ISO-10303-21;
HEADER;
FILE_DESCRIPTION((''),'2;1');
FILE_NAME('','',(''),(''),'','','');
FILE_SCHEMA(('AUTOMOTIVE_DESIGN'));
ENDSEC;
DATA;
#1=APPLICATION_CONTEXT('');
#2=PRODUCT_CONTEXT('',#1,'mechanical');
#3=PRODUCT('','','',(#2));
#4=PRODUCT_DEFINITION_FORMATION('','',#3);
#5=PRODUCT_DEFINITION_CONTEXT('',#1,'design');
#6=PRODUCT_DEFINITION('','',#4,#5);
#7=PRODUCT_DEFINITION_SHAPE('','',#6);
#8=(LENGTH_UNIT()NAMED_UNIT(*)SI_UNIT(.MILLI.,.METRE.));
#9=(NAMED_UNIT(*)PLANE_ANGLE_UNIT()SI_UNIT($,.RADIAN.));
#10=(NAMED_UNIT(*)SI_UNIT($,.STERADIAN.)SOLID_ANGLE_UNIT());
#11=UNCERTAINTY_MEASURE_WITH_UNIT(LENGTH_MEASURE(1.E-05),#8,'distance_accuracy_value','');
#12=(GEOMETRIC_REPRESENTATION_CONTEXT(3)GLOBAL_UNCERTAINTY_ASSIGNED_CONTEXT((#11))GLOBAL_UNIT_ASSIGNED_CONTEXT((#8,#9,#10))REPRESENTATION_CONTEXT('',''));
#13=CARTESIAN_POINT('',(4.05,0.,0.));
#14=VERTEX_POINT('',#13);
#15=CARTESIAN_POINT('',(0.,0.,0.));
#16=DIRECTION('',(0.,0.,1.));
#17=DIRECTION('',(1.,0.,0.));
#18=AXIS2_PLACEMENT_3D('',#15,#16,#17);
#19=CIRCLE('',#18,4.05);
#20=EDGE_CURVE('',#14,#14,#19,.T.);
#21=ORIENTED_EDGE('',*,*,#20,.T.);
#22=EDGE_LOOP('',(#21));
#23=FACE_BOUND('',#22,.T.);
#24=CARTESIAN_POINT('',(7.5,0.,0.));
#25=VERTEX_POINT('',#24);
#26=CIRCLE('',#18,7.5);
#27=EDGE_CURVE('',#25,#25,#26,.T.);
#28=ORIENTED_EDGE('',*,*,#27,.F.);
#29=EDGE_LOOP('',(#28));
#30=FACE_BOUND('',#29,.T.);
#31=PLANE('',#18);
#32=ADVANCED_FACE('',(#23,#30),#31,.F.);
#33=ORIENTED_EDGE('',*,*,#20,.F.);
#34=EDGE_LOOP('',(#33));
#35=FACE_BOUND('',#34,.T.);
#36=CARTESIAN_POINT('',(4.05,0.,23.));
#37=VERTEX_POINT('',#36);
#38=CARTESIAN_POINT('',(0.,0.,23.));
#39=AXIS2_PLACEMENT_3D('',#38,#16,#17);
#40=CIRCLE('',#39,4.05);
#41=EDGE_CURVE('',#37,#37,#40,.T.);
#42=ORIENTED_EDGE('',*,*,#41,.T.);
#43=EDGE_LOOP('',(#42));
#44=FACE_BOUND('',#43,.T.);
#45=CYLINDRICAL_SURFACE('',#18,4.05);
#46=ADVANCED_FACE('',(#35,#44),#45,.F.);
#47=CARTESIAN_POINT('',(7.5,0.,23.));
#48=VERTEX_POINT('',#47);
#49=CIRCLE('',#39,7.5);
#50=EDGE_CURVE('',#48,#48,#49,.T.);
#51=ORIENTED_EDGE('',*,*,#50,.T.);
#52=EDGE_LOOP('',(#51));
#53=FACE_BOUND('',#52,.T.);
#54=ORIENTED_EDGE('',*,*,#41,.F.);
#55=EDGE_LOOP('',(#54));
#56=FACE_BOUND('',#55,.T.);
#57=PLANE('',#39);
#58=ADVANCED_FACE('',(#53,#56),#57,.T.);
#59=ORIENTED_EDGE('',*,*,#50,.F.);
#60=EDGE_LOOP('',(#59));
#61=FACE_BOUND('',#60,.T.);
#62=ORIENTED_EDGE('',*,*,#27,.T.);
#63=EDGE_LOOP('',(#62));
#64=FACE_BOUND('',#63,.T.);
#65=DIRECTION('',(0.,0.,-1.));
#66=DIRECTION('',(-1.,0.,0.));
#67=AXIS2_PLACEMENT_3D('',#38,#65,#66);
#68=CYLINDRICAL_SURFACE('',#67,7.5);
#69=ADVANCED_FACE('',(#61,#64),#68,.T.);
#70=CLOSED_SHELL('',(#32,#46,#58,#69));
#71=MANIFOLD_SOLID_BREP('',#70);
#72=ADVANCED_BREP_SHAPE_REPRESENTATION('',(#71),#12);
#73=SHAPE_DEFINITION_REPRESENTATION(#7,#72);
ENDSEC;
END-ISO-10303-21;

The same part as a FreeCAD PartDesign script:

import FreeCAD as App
import Part
import Sketcher

V = App.Vector
Q = App.Units.Quantity

doc = App.newDocument("Part")
body = doc.addObject("PartDesign::Body", "Body")

# Sketch on XY plane
sketch1 = body.newObject("Sketcher::SketchObject", "Sketch")
sketch1.AttachmentSupport = (doc.getObject("XY_Plane"), [""])
sketch1.MapMode = "FlatFace"
sketch1.addGeometry(Part.Circle(V(0, 0, 0), V(0, 0, 1), 7.5), False)
sketch1.addConstraint(Sketcher.Constraint("Coincident", 0, 3, -1, 1))
sketch1.addConstraint(Sketcher.Constraint("Diameter", 0, Q("15 mm")))
pad1 = body.newObject("PartDesign::Pad", "Pad")
pad1.Profile = sketch1
pad1.Length = 23

# Sketch on XY plane
sketch2 = body.newObject("Sketcher::SketchObject", "Sketch001")
sketch2.AttachmentSupport = (doc.getObject("XY_Plane"), [""])
sketch2.MapMode = "FlatFace"
sketch2.AttachmentOffset = App.Placement(V(0, 0, 23), App.Rotation())
sketch2.addGeometry(Part.Circle(V(0, 0, 0), V(0, 0, 1), 4.05), False)
sketch2.addConstraint(Sketcher.Constraint("Coincident", 0, 3, -1, 1))
sketch2.addConstraint(Sketcher.Constraint("Diameter", 0, Q("8.1 mm")))
pocket1 = body.newObject("PartDesign::Pocket", "Pocket")
pocket1.Profile = sketch2
pocket1.Type = "ThroughAll"

doc.recompute()
